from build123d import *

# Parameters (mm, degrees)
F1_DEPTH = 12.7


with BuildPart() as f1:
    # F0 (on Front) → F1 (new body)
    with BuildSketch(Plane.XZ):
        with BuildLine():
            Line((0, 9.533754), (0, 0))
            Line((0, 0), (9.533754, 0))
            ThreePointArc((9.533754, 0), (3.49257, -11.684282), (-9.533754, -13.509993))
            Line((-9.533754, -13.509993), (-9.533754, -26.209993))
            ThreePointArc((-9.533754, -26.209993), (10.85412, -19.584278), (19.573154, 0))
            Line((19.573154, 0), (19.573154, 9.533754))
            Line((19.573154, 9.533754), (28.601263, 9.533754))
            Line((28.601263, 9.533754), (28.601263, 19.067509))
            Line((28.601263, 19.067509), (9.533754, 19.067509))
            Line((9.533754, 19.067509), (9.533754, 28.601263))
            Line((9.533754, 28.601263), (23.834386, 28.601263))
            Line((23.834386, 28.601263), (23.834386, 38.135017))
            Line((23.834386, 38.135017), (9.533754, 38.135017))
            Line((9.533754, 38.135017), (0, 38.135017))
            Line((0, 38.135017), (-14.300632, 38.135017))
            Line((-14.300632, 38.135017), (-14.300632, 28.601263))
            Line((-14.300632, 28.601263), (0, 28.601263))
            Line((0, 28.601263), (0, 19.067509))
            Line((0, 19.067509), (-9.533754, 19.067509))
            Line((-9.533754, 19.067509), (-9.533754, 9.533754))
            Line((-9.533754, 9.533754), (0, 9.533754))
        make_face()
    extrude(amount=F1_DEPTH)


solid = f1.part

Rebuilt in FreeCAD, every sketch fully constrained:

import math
import FreeCAD as App
import Part
import Sketcher
from FreeCAD import Vector
Q = App.Units.Quantity

doc = App.newDocument("Part")
body = doc.addObject("PartDesign::Body", "Body")

# Sketch on XZ plane
sketch1 = body.newObject("Sketcher::SketchObject", "Sketch")
sketch1.AttachmentSupport = (doc.getObject("XZ_Plane"), [""])
sketch1.MapMode = "FlatFace"
sketch1.addGeometry([
    Part.LineSegment(Vector(0, 10, 0), Vector(0, 0, 0)),  # 0
    Part.LineSegment(Vector(0, 0, 0), Vector(10, 0, 0)),  # 1
    Part.ArcOfCircle(Part.Circle(Vector(-5, 0, 0), Vector(0, 0, 1), 14), math.radians(-109), math.radians(0)),  # 2
    Part.LineSegment(Vector(-10, -14, 0), Vector(-10, -26, 0)),  # 3
    Part.ArcOfCircle(Part.Circle(Vector(-7, 0, 0), Vector(0, 0, 1), 26), math.radians(-96), math.radians(0)),  # 4
    Part.LineSegment(Vector(20, 0, 0), Vector(20, 10, 0)),  # 5
    Part.LineSegment(Vector(20, 10, 0), Vector(29, 10, 0)),  # 6
    Part.LineSegment(Vector(29, 10, 0), Vector(29, 19, 0)),  # 7
    Part.LineSegment(Vector(29, 19, 0), Vector(10, 19, 0)),  # 8
    Part.LineSegment(Vector(10, 19, 0), Vector(10, 29, 0)),  # 9
    Part.LineSegment(Vector(10, 29, 0), Vector(24, 29, 0)),  # 10
    Part.LineSegment(Vector(24, 29, 0), Vector(24, 38, 0)),  # 11
    Part.LineSegment(Vector(24, 38, 0), Vector(-14, 38, 0)),  # 12
    Part.LineSegment(Vector(-14, 38, 0), Vector(-14, 29, 0)),  # 13
    Part.LineSegment(Vector(-14, 29, 0), Vector(0, 29, 0)),  # 14
    Part.LineSegment(Vector(0, 29, 0), Vector(0, 19, 0)),  # 15
    Part.LineSegment(Vector(0, 19, 0), Vector(-10, 19, 0)),  # 16
    Part.LineSegment(Vector(-10, 19, 0), Vector(-10, 10, 0)),  # 17
    Part.LineSegment(Vector(-10, 10, 0), Vector(0, 10, 0)),  # 18
], False)
sketch1.addConstraint([
    Sketcher.Constraint("Coincident", 0, 2, 1, 1),
    Sketcher.Constraint("Coincident", 1, 2, 2, 2),
    Sketcher.Constraint("Coincident", 2, 1, 3, 1),
    Sketcher.Constraint("Coincident", 3, 2, 4, 1),
    Sketcher.Constraint("Tangent", 4, 2, 5, 1),
    Sketcher.Constraint("Coincident", 5, 2, 6, 1),
    Sketcher.Constraint("Coincident", 6, 2, 7, 1),
    Sketcher.Constraint("Coincident", 7, 2, 8, 1),
    Sketcher.Constraint("Coincident", 8, 2, 9, 1),
    Sketcher.Constraint("Coincident", 9, 2, 10, 1),
    Sketcher.Constraint("Coincident", 10, 2, 11, 1),
    Sketcher.Constraint("Coincident", 11, 2, 12, 1),
    Sketcher.Constraint("Coincident", 12, 2, 13, 1),
    Sketcher.Constraint("Coincident", 13, 2, 14, 1),
    Sketcher.Constraint("Coincident", 14, 2, 15, 1),
    Sketcher.Constraint("Coincident", 15, 2, 16, 1),
    Sketcher.Constraint("Coincident", 16, 2, 17, 1),
    Sketcher.Constraint("Coincident", 17, 2, 18, 1),
    Sketcher.Constraint("Coincident", 18, 2, 0, 1),
    Sketcher.Constraint("Vertical", 0),
    Sketcher.Constraint("Horizontal", 1),
    Sketcher.Constraint("Vertical", 3),
    Sketcher.Constraint("Vertical", 5),
    Sketcher.Constraint("Horizontal", 6),
    Sketcher.Constraint("Vertical", 7),
    Sketcher.Constraint("Horizontal", 8),
    Sketcher.Constraint("Vertical", 9),
    Sketcher.Constraint("Horizontal", 10),
    Sketcher.Constraint("Vertical", 11),
    Sketcher.Constraint("Horizontal", 12),
    Sketcher.Constraint("Vertical", 13),
    Sketcher.Constraint("Horizontal", 14),
    Sketcher.Constraint("Vertical", 15),
    Sketcher.Constraint("Horizontal", 16),
    Sketcher.Constraint("Vertical", 17),
    Sketcher.Constraint("Horizontal", 18),
    Sketcher.Constraint("Coincident", 0, 2, -1, 1),
    Sketcher.Constraint("Symmetric", 8, 2, 16, 2, -2),
    Sketcher.Constraint("PointOnObject", 2, 3, -1),
    Sketcher.Constraint("PointOnObject", 4, 3, -1),
    Sketcher.Constraint("PointOnObject", 14, 2, -2),
    Sketcher.Constraint("Horizontal", 10, 2, 13, 2),
    Sketcher.Constraint("Horizontal", 6, 2, 17, 2),
    Sketcher.Constraint("Vertical", 1, 2, 8, 2),
    Sketcher.Constraint("Vertical", 3, 2, 16, 2),
    Sketcher.Constraint("Equal", 10, 14),
    Sketcher.Constraint("Equal", 18, 0),
    Sketcher.Constraint("Equal", 5, 7),
    Sketcher.Constraint("Equal", 7, 9),
    Sketcher.Constraint("Equal", 9, 11),
    Sketcher.Constraint("DistanceY", 3, 2, 3, 1, Q("0.5 in")),
    Sketcher.Constraint("Radius", 2, 14.319904),
    Sketcher.Constraint("Radius", 4, 26.354154),
    Sketcher.Constraint("DistanceX", 6, 1, 6, 2, 9.028109),
    Sketcher.Constraint("DistanceX", 8, 2, 8, 1, 19.067509),
    Sketcher.Constraint("DistanceX", 10, 1, 10, 2, 14.300632),
])
pad1 = body.newObject("PartDesign::Pad", "Pad")
pad1.Profile = sketch1
pad1.Length = Q("0.5 in")

doc.recompute()
